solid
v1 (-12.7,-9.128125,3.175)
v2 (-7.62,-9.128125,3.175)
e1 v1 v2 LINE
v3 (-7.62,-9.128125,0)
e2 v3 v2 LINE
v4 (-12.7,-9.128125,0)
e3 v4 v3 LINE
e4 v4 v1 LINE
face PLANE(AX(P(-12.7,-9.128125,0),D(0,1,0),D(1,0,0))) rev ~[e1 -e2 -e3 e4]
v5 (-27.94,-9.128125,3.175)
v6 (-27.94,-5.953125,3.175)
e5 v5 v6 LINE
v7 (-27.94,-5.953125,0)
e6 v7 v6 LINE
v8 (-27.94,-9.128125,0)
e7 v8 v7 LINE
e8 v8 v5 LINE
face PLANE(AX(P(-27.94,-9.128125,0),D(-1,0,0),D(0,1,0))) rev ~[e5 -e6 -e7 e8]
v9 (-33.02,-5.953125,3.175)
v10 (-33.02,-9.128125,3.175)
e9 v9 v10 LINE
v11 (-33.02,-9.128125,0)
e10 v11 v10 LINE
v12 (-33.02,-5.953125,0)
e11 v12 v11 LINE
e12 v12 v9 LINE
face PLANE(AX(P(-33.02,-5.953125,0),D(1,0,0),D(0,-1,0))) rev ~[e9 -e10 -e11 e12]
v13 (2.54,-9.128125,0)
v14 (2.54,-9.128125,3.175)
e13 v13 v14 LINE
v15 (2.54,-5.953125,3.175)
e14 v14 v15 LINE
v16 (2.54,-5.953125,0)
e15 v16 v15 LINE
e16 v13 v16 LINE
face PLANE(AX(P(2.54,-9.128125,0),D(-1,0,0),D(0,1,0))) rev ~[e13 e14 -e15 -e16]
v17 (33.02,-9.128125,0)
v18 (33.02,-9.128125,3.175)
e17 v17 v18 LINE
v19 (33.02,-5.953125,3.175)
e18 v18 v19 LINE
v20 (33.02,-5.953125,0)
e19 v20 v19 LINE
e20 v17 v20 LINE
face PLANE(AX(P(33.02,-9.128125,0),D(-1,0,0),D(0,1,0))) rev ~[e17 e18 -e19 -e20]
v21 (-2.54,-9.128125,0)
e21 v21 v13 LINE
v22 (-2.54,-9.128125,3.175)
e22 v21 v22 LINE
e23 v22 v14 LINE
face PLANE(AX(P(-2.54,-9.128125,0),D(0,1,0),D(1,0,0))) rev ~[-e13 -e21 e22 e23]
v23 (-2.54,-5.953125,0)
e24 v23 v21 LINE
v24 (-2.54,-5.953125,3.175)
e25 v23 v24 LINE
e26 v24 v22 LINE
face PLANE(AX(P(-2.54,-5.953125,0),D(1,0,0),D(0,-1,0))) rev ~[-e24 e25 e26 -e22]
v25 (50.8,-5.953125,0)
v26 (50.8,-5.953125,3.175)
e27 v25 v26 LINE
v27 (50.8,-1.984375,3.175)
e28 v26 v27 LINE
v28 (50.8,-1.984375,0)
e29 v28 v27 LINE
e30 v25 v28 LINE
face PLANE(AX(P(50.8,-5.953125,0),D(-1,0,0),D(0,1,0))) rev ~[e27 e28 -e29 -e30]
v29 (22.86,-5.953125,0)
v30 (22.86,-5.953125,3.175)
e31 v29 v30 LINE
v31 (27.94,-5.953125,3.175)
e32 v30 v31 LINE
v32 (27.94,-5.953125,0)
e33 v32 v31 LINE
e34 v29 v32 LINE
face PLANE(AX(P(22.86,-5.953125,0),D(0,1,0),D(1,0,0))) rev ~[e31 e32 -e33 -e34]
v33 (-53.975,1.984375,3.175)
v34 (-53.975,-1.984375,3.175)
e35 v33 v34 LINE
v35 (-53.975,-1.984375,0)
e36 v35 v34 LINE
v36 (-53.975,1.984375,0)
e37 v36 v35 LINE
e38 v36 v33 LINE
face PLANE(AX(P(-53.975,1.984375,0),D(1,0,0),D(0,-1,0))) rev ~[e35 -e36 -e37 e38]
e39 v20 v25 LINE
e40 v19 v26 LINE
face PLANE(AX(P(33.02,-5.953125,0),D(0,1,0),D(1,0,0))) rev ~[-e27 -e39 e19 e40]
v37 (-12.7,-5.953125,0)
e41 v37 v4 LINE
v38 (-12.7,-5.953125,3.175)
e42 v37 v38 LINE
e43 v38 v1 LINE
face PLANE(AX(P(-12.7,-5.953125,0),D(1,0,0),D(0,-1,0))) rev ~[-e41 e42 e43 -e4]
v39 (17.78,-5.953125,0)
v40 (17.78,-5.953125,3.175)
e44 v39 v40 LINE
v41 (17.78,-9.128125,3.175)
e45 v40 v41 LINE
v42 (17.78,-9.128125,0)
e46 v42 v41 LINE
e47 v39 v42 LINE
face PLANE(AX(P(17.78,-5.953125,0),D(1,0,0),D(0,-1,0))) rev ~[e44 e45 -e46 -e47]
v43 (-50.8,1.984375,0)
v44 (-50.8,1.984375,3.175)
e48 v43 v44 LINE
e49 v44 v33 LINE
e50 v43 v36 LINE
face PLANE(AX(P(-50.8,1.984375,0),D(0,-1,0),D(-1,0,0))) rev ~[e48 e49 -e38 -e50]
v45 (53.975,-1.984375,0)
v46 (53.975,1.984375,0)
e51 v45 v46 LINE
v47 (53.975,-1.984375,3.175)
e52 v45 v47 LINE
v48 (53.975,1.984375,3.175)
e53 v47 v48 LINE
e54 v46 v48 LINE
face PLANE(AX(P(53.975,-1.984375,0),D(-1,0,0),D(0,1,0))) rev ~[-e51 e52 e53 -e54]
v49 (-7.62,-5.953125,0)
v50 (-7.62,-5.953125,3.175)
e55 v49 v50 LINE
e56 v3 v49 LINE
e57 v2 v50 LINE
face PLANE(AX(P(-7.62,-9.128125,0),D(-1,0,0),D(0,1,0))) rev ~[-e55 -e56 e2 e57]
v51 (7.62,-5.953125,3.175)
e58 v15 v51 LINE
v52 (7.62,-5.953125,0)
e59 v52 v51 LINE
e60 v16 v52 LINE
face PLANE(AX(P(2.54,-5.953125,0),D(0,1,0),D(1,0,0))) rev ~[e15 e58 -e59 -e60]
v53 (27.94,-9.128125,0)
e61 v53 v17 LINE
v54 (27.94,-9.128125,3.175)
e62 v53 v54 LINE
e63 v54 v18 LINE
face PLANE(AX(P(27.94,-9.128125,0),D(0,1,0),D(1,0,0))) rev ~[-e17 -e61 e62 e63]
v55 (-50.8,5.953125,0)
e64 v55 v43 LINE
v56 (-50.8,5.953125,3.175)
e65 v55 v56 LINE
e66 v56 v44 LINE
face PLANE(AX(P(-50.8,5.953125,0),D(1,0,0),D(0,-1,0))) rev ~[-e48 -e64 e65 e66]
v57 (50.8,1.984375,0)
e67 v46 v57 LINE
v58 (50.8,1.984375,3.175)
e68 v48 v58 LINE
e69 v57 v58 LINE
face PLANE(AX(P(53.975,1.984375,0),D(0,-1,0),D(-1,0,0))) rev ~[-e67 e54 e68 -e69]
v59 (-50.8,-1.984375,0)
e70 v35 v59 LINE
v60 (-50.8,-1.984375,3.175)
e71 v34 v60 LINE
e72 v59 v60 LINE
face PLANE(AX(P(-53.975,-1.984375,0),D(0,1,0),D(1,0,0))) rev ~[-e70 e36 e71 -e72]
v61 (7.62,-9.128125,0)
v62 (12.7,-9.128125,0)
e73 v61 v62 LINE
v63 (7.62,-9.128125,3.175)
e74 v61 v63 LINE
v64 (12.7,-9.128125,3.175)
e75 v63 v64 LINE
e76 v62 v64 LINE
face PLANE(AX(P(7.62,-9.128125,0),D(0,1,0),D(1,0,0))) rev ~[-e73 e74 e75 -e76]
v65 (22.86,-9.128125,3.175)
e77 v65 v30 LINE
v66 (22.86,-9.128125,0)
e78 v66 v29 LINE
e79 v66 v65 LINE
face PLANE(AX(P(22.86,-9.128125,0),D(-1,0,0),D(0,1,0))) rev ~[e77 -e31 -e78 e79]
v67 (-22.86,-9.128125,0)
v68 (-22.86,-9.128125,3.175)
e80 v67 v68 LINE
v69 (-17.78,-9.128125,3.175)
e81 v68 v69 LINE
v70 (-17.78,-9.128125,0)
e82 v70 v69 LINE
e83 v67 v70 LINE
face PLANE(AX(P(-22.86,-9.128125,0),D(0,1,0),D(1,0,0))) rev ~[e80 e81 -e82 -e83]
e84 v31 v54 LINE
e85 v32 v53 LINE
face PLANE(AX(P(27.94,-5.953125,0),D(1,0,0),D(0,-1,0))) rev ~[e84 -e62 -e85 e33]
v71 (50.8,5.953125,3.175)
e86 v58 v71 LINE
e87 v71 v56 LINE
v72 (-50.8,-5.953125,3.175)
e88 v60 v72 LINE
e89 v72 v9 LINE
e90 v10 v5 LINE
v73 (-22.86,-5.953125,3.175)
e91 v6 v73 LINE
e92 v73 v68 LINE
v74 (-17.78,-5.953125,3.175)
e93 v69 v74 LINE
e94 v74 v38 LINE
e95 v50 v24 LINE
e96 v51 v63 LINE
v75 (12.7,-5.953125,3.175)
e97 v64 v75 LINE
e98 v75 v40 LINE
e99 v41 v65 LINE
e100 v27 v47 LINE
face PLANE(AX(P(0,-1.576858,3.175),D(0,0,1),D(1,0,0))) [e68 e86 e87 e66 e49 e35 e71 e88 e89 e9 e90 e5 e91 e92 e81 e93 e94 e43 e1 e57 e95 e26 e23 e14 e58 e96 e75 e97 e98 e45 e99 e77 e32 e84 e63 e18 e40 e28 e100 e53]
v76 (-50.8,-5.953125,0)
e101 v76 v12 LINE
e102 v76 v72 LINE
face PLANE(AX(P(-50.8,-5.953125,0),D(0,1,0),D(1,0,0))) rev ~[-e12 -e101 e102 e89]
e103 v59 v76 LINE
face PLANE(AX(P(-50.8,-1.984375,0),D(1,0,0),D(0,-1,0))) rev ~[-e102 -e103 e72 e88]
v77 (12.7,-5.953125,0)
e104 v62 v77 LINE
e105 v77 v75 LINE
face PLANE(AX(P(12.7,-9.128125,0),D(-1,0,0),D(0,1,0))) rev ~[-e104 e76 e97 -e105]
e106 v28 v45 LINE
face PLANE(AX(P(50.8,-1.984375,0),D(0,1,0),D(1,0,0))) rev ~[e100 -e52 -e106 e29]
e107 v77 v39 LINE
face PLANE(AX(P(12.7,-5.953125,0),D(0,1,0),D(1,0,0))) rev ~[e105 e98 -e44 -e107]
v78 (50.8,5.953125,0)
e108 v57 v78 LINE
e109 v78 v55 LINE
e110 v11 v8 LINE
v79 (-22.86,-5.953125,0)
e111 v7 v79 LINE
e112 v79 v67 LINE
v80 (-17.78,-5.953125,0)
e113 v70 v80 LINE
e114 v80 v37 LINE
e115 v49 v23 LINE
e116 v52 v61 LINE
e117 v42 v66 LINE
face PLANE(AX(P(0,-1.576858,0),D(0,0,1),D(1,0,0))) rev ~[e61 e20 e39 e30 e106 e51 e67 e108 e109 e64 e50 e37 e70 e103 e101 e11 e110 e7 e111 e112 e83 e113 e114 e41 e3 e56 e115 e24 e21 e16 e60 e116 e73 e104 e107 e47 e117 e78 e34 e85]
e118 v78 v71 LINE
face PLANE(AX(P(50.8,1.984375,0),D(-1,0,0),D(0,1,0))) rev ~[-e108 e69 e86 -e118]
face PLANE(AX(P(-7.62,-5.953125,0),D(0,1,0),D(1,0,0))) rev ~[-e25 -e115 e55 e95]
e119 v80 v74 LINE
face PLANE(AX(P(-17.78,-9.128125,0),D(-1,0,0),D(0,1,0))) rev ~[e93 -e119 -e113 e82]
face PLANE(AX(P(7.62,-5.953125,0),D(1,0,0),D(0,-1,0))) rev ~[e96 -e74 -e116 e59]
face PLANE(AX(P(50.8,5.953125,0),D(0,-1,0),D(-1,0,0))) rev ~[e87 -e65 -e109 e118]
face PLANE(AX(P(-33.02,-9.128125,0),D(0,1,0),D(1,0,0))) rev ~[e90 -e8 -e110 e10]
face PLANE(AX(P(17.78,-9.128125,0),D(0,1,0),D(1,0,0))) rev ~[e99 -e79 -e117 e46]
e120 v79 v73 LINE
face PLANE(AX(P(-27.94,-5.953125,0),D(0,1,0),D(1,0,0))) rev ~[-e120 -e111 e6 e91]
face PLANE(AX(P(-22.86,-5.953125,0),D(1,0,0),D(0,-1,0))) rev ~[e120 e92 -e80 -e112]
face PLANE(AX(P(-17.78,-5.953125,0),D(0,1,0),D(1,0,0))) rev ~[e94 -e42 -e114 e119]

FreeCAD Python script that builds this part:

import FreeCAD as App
import Part
import Sketcher
from FreeCAD import Vector
Q = App.Units.Quantity


def add_polygon(sketch, points):
    """Adds a closed chain of lines whose ends are joined by coincident constraints."""
    first, n = sketch.GeometryCount, len(points)
    for a, b in zip(points, points[1:] + points[:1]):
        sketch.addGeometry(Part.LineSegment(App.Vector(*a, 0), App.Vector(*b, 0)), False)
    for i in range(n):
        sketch.addConstraint(Sketcher.Constraint("Coincident", first + i, 2, first + (i + 1) % n, 1))

doc = App.newDocument("Part")
body = doc.addObject("PartDesign::Body", "Body")

# Sketch on XY plane
sketch1 = body.newObject("Sketcher::SketchObject", "Sketch")
sketch1.AttachmentSupport = (doc.getObject("XY_Plane"), [""])
sketch1.MapMode = "FlatFace"
add_polygon(sketch1, [(-50.8, -6), (-33, -6), (-33, -9.1), (-27.9, -9.1), (-27.9, -6), (-22.9, -6), (-22.9, -9.1), (-17.8, -9.1), (-17.8, -6), (-12.7, -6), (-12.7, -9.1), (-7.6, -9.1), (-7.6, -6), (-2.5, -6), (-2.5, -9.1), (2.5, -9.1), (2.5, -6), (7.6, -6), (7.6, -9.1), (12.7, -9.1), (12.7, -6), (17.8, -6), (17.8, -9.1), (22.9, -9.1), (22.9, -6), (27.9, -6), (27.9, -9.1), (33, -9.1), (33, -6), (50.8, -6), (50.8, -2), (54, -2), (54, 2), (50.8, 2), (50.8, 6), (-50.8, 6), (-50.8, 2), (-54, 2), (-54, -2), (-50.8, -2)])  # lines 0-39
sketch1.addConstraint(Sketcher.Constraint("Horizontal", 0))
sketch1.addConstraint(Sketcher.Constraint("Vertical", 1))
sketch1.addConstraint(Sketcher.Constraint("Horizontal", 2))
sketch1.addConstraint(Sketcher.Constraint("Vertical", 3))
sketch1.addConstraint(Sketcher.Constraint("Horizontal", 4))
sketch1.addConstraint(Sketcher.Constraint("Vertical", 5))
sketch1.addConstraint(Sketcher.Constraint("Horizontal", 6))
sketch1.addConstraint(Sketcher.Constraint("Vertical", 7))
sketch1.addConstraint(Sketcher.Constraint("Horizontal", 8))
sketch1.addConstraint(Sketcher.Constraint("Vertical", 9))
sketch1.addConstraint(Sketcher.Constraint("Horizontal", 10))
sketch1.addConstraint(Sketcher.Constraint("Vertical", 11))
sketch1.addConstraint(Sketcher.Constraint("Horizontal", 12))
sketch1.addConstraint(Sketcher.Constraint("Vertical", 13))
sketch1.addConstraint(Sketcher.Constraint("Horizontal", 14))
sketch1.addConstraint(Sketcher.Constraint("Vertical", 15))
sketch1.addConstraint(Sketcher.Constraint("Horizontal", 16))
sketch1.addConstraint(Sketcher.Constraint("Vertical", 17))
sketch1.addConstraint(Sketcher.Constraint("Horizontal", 18))
sketch1.addConstraint(Sketcher.Constraint("Vertical", 19))
sketch1.addConstraint(Sketcher.Constraint("Horizontal", 20))
sketch1.addConstraint(Sketcher.Constraint("Vertical", 21))
sketch1.addConstraint(Sketcher.Constraint("Horizontal", 22))
sketch1.addConstraint(Sketcher.Constraint("Vertical", 23))
sketch1.addConstraint(Sketcher.Constraint("Horizontal", 24))
sketch1.addConstraint(Sketcher.Constraint("Vertical", 25))
sketch1.addConstraint(Sketcher.Constraint("Horizontal", 26))
sketch1.addConstraint(Sketcher.Constraint("Vertical", 27))
sketch1.addConstraint(Sketcher.Constraint("Horizontal", 28))
sketch1.addConstraint(Sketcher.Constraint("Vertical", 29))
sketch1.addConstraint(Sketcher.Constraint("Horizontal", 30))
sketch1.addConstraint(Sketcher.Constraint("Vertical", 31))
sketch1.addConstraint(Sketcher.Constraint("Horizontal", 32))
sketch1.addConstraint(Sketcher.Constraint("Vertical", 33))
sketch1.addConstraint(Sketcher.Constraint("Horizontal", 34))
sketch1.addConstraint(Sketcher.Constraint("Vertical", 35))
sketch1.addConstraint(Sketcher.Constraint("Horizontal", 36))
sketch1.addConstraint(Sketcher.Constraint("Vertical", 37))
sketch1.addConstraint(Sketcher.Constraint("Horizontal", 38))
sketch1.addConstraint(Sketcher.Constraint("Vertical", 39))
sketch1.addConstraint(Sketcher.Constraint("Symmetric", 28, 2, 34, 2, -1, 1))
sketch1.addConstraint(Sketcher.Constraint("Symmetric", 30, 2, 36, 2, -1, 1))
sketch1.addConstraint(Sketcher.Constraint("Symmetric", 32, 2, 38, 2, -1, 1))
sketch1.addConstraint(Sketcher.Constraint("Symmetric", 12, 2, 15, 2, -2))
sketch1.addConstraint(Sketcher.Constraint("Symmetric", 10, 2, 17, 2, -2))
sketch1.addConstraint(Sketcher.Constraint("Symmetric", 8, 2, 19, 2, -2))
sketch1.addConstraint(Sketcher.Constraint("Symmetric", 6, 2, 21, 2, -2))
sketch1.addConstraint(Sketcher.Constraint("Symmetric", 4, 2, 23, 2, -2))
sketch1.addConstraint(Sketcher.Constraint("Symmetric", 2, 2, 25, 2, -2))
sketch1.addConstraint(Sketcher.Constraint("Symmetric", 0, 2, 27, 2, -2))
sketch1.addConstraint(Sketcher.Constraint("Symmetric", 32, 2, 35, 2, -2))
sketch1.addConstraint(Sketcher.Constraint("Horizontal", 0, 2, 3, 2))
sketch1.addConstraint(Sketcher.Constraint("Horizontal", 2, 2, 5, 2))
sketch1.addConstraint(Sketcher.Constraint("Horizontal", 4, 2, 7, 2))
sketch1.addConstraint(Sketcher.Constraint("Horizontal", 6, 2, 9, 2))
sketch1.addConstraint(Sketcher.Constraint("Horizontal", 8, 2, 11, 2))
sketch1.addConstraint(Sketcher.Constraint("Horizontal", 10, 2, 13, 2))
sketch1.addConstraint(Sketcher.Constraint("Equal", 2, 4))
sketch1.addConstraint(Sketcher.Constraint("Equal", 4, 6))
sketch1.addConstraint(Sketcher.Constraint("Equal", 6, 8))
sketch1.addConstraint(Sketcher.Constraint("Equal", 8, 10))
sketch1.addConstraint(Sketcher.Constraint("Equal", 10, 12))
sketch1.addConstraint(Sketcher.Constraint("Equal", 12, 14))
sketch1.addConstraint(Sketcher.Constraint("Equal", 38, 1))
sketch1.addConstraint(Sketcher.Constraint("Equal", 29, 31))
sketch1.addConstraint(Sketcher.Constraint("DistanceX", 34, 2, 34, 1, Q("4 in")))
sketch1.addConstraint(Sketcher.Constraint("DistanceX", 0, 1, 0, 2, Q("0.7 in")))
sketch1.addConstraint(Sketcher.Constraint("DistanceX", 30, 1, 30, 2, Q("0.125 in")))
sketch1.addConstraint(Sketcher.Constraint("DistanceY", 29, 1, 29, 2, Q("0.15625 in")))
pad1 = body.newObject("PartDesign::Pad", "Pad")
pad1.Profile = sketch1
pad1.Length = Q("0.125 in")

doc.recompute()
